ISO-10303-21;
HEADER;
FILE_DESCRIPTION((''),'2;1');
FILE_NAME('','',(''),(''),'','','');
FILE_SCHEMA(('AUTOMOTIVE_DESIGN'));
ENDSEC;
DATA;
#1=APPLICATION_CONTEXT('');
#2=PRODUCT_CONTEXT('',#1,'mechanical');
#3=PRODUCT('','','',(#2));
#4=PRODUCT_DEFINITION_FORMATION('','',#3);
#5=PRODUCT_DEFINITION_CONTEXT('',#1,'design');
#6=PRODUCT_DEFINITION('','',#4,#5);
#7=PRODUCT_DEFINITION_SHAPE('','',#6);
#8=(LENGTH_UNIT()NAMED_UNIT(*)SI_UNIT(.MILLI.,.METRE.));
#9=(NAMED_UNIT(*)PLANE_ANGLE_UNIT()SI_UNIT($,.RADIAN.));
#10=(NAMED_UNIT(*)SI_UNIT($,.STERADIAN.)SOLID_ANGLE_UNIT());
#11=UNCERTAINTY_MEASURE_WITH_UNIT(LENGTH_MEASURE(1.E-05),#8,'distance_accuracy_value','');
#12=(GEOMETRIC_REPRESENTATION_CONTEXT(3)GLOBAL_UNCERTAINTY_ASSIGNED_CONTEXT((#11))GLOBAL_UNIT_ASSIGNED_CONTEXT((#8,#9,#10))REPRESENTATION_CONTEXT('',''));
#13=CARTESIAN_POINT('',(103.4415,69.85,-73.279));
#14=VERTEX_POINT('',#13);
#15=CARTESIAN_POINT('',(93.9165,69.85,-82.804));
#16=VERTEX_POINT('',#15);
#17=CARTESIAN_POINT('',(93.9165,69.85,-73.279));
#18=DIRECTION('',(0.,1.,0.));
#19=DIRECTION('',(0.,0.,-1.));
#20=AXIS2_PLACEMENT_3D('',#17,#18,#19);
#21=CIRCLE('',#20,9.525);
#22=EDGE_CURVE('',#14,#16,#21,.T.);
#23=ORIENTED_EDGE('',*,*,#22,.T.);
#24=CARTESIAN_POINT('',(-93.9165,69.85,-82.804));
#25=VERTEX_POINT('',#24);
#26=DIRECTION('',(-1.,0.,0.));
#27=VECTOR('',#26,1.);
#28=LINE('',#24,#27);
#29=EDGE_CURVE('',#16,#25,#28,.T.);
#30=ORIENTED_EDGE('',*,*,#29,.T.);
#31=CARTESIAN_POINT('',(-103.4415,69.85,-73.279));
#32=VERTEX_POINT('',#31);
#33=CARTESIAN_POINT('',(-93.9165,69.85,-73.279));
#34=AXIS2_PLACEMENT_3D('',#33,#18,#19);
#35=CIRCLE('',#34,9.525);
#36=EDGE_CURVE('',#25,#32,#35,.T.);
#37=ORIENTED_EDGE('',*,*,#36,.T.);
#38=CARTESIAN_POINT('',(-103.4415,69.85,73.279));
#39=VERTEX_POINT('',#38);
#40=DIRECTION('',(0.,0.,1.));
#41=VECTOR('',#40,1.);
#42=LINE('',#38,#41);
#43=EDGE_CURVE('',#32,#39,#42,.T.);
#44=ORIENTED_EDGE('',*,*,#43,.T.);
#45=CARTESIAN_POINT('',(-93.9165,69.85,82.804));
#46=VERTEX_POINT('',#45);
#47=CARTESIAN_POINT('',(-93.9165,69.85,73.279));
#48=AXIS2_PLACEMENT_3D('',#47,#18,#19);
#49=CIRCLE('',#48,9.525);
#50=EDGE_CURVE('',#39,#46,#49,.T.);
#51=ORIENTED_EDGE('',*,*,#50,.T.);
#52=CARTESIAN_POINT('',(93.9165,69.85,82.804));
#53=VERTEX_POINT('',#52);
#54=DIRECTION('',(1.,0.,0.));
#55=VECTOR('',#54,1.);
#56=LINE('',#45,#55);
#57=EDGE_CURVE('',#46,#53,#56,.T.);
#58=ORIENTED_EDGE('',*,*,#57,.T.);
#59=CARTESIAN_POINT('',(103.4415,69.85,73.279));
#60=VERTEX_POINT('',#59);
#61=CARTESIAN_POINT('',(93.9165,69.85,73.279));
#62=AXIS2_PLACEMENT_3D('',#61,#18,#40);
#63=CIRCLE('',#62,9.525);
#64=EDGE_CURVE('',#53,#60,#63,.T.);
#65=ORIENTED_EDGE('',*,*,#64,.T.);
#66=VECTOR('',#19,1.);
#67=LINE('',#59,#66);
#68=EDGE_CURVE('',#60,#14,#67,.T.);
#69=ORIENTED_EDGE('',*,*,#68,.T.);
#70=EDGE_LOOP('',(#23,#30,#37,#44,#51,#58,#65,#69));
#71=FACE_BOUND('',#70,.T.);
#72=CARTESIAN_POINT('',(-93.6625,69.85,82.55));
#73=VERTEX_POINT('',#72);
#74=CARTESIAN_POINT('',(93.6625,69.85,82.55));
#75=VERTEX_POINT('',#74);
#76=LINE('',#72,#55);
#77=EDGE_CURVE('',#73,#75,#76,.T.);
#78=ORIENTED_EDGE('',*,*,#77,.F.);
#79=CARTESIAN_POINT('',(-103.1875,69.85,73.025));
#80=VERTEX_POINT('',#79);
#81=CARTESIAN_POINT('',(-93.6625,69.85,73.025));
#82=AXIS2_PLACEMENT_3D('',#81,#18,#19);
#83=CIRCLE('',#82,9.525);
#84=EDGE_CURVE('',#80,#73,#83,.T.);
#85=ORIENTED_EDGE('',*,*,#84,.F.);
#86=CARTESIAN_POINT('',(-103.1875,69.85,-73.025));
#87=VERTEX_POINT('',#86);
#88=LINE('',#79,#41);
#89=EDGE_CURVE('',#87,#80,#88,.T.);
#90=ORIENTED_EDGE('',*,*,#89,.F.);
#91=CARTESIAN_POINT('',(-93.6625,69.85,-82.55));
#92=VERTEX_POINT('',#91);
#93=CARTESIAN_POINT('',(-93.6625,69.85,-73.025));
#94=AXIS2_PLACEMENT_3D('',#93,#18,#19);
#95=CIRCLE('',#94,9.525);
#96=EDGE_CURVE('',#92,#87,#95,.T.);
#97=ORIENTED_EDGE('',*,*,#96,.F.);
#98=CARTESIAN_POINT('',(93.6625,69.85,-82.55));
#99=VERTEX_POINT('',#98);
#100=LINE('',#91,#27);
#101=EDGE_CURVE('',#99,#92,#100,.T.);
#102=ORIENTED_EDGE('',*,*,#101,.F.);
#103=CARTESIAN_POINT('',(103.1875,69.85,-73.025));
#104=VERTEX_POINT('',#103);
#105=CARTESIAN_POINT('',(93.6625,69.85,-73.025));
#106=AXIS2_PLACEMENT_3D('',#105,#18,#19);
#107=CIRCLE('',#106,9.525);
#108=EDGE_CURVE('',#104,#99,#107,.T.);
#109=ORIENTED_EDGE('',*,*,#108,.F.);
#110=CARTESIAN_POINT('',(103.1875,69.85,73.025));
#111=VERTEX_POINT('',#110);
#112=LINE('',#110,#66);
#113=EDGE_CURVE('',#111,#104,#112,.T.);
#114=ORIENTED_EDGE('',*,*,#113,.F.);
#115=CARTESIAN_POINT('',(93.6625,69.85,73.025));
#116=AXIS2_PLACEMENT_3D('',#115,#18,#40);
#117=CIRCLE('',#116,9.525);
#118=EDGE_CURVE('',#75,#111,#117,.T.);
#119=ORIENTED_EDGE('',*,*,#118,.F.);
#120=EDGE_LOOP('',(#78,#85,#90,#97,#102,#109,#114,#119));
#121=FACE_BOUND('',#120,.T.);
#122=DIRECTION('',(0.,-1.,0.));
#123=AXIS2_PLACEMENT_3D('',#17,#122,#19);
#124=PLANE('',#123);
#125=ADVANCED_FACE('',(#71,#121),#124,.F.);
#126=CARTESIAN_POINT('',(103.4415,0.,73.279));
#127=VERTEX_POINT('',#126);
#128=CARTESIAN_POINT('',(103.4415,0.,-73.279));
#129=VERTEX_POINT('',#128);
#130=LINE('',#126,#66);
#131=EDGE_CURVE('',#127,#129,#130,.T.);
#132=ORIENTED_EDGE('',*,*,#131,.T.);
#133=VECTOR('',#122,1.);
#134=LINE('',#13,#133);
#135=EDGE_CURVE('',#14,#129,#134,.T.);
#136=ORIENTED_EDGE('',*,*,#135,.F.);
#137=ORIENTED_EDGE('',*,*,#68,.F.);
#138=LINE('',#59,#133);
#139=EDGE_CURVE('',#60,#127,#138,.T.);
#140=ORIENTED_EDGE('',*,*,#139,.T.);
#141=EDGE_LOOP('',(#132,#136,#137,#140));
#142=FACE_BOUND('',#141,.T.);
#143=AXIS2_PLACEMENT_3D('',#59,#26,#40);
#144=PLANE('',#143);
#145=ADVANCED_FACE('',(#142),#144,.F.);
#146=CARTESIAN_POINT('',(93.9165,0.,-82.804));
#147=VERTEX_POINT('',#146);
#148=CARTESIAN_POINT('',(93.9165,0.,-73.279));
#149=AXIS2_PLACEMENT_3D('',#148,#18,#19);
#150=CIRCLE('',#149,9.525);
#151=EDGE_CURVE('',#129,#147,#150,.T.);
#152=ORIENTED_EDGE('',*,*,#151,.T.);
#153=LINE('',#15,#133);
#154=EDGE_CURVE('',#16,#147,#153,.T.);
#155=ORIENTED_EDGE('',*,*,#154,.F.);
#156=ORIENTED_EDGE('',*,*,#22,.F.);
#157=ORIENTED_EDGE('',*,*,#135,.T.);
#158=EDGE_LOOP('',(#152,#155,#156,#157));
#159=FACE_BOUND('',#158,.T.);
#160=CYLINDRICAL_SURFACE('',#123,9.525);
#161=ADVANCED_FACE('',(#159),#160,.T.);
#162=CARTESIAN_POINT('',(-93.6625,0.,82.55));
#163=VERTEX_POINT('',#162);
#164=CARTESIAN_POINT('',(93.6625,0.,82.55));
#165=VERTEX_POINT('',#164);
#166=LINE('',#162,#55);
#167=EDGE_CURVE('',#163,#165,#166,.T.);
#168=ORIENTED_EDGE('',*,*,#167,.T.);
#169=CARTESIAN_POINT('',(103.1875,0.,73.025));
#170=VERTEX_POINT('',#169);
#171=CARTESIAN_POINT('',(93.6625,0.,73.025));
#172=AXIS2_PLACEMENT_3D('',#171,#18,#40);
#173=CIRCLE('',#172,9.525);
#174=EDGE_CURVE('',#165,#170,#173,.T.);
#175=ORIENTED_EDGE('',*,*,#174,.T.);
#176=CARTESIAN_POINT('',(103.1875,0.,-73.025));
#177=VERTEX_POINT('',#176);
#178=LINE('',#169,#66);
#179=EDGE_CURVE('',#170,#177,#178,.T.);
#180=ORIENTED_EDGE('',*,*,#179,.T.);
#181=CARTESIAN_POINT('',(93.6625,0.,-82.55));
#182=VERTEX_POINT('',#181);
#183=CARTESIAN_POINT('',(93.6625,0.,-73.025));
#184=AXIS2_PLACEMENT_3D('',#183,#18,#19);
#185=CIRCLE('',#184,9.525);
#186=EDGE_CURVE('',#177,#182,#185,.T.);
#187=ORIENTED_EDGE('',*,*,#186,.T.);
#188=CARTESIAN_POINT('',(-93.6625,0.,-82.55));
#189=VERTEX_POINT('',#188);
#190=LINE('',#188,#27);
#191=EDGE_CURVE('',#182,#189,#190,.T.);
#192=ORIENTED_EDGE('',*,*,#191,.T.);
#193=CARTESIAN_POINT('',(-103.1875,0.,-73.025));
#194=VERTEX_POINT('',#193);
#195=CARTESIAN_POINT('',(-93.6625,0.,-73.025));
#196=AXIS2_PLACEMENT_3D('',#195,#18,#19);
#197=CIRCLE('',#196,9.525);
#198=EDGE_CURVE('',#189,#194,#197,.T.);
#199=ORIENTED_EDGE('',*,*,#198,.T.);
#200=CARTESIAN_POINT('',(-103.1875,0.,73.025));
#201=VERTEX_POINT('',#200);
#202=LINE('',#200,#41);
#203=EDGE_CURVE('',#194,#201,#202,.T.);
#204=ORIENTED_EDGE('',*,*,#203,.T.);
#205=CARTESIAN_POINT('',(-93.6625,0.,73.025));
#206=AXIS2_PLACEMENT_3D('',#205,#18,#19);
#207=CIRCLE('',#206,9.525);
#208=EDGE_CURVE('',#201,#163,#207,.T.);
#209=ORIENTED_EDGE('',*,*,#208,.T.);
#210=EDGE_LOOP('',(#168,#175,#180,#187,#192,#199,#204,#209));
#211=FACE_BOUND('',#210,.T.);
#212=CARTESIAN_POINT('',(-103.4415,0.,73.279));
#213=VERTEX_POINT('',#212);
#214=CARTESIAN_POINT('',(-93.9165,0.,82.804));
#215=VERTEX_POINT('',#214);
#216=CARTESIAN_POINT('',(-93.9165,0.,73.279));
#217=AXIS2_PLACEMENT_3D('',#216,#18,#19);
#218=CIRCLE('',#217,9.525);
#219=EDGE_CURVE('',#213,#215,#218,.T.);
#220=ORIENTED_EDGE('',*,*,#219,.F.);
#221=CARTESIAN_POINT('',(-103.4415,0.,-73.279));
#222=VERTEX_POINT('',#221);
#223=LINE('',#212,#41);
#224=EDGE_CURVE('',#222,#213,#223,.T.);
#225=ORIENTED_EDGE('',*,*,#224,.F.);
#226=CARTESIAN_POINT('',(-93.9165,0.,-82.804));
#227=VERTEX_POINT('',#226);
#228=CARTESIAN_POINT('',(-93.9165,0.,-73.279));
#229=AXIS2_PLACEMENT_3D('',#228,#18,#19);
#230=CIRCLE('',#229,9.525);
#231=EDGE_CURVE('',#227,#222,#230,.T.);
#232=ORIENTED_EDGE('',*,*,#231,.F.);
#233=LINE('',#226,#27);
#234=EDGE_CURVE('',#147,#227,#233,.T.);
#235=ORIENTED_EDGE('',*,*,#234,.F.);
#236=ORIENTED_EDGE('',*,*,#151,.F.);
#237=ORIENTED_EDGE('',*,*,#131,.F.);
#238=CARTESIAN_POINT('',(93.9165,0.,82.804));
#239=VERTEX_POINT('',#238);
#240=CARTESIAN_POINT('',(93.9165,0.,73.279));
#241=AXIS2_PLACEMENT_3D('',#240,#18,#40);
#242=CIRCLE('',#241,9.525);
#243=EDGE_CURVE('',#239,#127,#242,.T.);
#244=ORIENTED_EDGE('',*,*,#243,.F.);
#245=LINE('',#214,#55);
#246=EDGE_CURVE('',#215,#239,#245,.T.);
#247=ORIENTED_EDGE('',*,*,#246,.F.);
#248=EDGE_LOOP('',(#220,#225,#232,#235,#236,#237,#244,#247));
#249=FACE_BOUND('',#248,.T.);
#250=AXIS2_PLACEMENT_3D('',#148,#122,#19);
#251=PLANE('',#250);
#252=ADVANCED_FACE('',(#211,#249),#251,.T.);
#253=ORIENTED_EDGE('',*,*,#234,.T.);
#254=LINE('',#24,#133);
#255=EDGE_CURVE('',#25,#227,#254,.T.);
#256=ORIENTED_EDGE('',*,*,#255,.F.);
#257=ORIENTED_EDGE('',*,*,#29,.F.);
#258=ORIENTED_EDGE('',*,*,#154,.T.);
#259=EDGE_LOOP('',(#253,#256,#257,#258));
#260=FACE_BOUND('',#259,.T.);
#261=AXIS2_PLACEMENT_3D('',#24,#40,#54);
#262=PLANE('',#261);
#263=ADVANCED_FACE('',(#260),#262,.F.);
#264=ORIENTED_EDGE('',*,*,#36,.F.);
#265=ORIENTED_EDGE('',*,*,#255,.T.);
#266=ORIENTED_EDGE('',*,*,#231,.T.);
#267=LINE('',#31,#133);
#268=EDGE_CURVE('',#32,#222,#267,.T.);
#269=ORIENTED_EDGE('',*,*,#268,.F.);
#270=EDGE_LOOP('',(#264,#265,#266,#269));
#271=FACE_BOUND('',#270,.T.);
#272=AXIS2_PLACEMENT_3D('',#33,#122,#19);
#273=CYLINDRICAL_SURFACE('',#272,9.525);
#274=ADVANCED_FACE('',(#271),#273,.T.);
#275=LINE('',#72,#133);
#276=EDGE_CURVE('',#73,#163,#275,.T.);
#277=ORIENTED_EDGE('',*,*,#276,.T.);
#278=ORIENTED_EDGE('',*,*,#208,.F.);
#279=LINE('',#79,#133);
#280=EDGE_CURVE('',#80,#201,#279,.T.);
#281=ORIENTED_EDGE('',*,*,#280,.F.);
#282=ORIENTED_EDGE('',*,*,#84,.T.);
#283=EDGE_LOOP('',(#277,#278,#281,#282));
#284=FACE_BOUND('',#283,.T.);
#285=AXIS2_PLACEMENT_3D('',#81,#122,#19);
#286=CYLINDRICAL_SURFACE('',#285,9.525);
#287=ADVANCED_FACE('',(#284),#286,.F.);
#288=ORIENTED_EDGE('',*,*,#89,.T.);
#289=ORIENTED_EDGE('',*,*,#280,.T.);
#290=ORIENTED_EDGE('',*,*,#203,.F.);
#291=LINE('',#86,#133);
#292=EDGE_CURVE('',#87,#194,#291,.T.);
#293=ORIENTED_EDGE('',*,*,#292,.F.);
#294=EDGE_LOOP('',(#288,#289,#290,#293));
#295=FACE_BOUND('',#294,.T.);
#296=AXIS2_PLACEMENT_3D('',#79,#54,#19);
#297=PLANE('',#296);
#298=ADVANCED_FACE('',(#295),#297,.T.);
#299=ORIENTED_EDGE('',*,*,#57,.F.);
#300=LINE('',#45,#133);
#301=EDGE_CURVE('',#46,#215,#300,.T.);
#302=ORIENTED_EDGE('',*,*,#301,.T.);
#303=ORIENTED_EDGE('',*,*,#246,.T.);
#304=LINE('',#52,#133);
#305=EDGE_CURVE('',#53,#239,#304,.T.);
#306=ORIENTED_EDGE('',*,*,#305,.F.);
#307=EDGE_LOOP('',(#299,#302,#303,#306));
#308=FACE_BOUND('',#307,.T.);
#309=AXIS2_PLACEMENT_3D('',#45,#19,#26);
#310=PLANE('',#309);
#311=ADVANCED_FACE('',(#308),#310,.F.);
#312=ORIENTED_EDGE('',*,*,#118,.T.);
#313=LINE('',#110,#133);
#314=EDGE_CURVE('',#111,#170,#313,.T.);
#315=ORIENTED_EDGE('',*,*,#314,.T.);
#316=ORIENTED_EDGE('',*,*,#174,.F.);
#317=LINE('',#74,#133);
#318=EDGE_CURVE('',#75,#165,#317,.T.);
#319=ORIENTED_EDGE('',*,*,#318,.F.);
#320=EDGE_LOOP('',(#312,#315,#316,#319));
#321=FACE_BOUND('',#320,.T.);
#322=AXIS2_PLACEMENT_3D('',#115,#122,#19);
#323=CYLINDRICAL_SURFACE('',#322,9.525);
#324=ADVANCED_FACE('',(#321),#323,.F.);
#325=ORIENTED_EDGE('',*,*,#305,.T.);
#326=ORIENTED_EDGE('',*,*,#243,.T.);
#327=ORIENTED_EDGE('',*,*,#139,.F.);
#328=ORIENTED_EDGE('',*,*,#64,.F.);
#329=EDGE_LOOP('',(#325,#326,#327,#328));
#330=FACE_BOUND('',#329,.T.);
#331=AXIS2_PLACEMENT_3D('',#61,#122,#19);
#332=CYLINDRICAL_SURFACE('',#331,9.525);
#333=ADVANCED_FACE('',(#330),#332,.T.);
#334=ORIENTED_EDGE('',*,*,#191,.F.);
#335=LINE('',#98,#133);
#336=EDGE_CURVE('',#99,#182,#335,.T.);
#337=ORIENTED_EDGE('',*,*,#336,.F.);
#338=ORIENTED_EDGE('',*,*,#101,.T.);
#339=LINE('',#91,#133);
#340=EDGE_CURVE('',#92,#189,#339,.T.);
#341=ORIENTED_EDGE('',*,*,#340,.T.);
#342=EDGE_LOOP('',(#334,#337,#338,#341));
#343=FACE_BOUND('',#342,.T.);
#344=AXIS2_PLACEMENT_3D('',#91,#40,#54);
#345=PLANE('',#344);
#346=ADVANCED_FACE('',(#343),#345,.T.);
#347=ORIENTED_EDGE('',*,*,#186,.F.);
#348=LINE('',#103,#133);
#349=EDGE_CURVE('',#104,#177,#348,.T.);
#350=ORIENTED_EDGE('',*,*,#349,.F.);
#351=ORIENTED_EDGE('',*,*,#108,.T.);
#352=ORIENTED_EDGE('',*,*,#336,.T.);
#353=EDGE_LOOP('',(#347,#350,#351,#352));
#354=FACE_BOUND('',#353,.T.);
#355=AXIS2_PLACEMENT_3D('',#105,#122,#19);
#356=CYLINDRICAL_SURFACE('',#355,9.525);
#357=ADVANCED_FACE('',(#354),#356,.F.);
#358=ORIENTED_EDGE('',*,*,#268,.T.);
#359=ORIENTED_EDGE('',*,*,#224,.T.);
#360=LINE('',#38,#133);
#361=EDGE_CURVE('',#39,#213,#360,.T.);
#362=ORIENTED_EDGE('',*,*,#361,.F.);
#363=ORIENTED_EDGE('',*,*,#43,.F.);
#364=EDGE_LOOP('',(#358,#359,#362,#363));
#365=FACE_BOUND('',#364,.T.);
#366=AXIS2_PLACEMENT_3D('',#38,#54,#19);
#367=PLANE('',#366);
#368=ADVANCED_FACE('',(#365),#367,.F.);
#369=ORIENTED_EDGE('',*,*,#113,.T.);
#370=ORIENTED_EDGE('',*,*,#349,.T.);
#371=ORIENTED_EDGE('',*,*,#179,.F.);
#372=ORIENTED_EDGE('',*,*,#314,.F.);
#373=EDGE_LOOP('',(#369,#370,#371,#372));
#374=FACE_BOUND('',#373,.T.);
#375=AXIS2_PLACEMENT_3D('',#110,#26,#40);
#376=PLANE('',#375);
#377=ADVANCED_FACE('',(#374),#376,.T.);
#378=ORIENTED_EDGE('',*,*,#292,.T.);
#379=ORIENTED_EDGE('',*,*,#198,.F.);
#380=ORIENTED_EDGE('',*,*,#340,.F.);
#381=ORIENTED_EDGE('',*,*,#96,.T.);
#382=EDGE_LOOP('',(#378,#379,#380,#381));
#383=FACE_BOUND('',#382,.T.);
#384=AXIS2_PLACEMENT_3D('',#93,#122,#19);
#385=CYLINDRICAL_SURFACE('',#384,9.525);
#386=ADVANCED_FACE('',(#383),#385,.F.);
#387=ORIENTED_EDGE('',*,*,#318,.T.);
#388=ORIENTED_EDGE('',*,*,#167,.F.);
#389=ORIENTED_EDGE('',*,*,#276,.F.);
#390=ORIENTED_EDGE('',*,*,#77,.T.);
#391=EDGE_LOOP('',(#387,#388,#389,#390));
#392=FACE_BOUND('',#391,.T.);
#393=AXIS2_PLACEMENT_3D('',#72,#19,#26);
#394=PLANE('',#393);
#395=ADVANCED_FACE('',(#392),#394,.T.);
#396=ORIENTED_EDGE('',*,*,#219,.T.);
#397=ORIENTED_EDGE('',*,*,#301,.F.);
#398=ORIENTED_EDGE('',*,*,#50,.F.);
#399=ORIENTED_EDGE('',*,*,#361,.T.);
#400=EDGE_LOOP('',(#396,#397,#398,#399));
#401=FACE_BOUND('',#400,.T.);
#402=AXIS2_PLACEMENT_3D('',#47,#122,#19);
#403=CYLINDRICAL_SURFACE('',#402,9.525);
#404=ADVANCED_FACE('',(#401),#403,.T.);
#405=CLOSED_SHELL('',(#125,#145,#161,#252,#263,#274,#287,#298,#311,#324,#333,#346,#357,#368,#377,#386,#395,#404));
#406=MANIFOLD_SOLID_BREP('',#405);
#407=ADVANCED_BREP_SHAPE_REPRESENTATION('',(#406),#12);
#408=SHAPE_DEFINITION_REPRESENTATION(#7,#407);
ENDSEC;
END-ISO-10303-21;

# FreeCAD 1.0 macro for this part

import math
import FreeCAD as App
import Part
import Sketcher
Q = App.Units.Quantity

doc = App.newDocument("Part")
body = doc.addObject("PartDesign::Body", "Body")

# Sketch on XZ plane
sketch1 = doc.addObject("Sketcher::SketchObject", "Sketch")
body.addObject(sketch1)
sketch1.AttachmentSupport = (doc.XZ_Plane, [""])
sketch1.MapMode = "FlatFace"
sketch1.addGeometry([
    Part.LineSegment(App.Vector(-93.9165, 82.804, 0), App.Vector(93.9165, 82.804, 0)),  # 0
    Part.ArcOfCircle(Part.Circle(App.Vector(93.9165, 73.279, 0), App.Vector(0, 0, 1), 9.525), math.radians(0), math.radians(90)),  # 1
    Part.LineSegment(App.Vector(103.4415, 73.279, 0), App.Vector(103.4415, -73.279, 0)),  # 2
    Part.ArcOfCircle(Part.Circle(App.Vector(93.9165, -73.279, 0), App.Vector(0, 0, 1), 9.525), math.radians(-90), math.radians(0)),  # 3
    Part.LineSegment(App.Vector(93.9165, -82.804, 0), App.Vector(-93.9165, -82.804, 0)),  # 4
    Part.ArcOfCircle(Part.Circle(App.Vector(-93.9165, -73.279, 0), App.Vector(0, 0, 1), 9.525), math.radians(180), math.radians(270)),  # 5
    Part.LineSegment(App.Vector(-103.4415, -73.279, 0), App.Vector(-103.4415, 73.279, 0)),  # 6
    Part.ArcOfCircle(Part.Circle(App.Vector(-93.9165, 73.279, 0), App.Vector(0, 0, 1), 9.525), math.radians(90), math.radians(180)),  # 7
    Part.LineSegment(App.Vector(93.6625, 82.55, 0), App.Vector(-93.6625, 82.55, 0)),  # 8
    Part.ArcOfCircle(Part.Circle(App.Vector(-93.6625, 73.025, 0), App.Vector(0, 0, 1), 9.525), math.radians(90), math.radians(180)),  # 9
    Part.LineSegment(App.Vector(-103.1875, 73.025, 0), App.Vector(-103.1875, -73.025, 0)),  # 10
    Part.ArcOfCircle(Part.Circle(App.Vector(-93.6625, -73.025, 0), App.Vector(0, 0, 1), 9.525), math.radians(180), math.radians(270)),  # 11
    Part.LineSegment(App.Vector(-93.6625, -82.55, 0), App.Vector(93.6625, -82.55, 0)),  # 12
    Part.ArcOfCircle(Part.Circle(App.Vector(93.6625, -73.025, 0), App.Vector(0, 0, 1), 9.525), math.radians(-90), math.radians(0)),  # 13
    Part.LineSegment(App.Vector(103.1875, -73.025, 0), App.Vector(103.1875, 73.025, 0)),  # 14
    Part.ArcOfCircle(Part.Circle(App.Vector(93.6625, 73.025, 0), App.Vector(0, 0, 1), 9.525), math.radians(0), math.radians(90)),  # 15
], False)
sketch1.addConstraint([
    Sketcher.Constraint("Tangent", 0, 2, 1, 2),
    Sketcher.Constraint("Tangent", 1, 1, 2, 1),
    Sketcher.Constraint("Tangent", 2, 2, 3, 2),
    Sketcher.Constraint("Tangent", 3, 1, 4, 1),
    Sketcher.Constraint("Tangent", 4, 2, 5, 2),
    Sketcher.Constraint("Tangent", 5, 1, 6, 1),
    Sketcher.Constraint("Tangent", 6, 2, 7, 2),
    Sketcher.Constraint("Tangent", 7, 1, 0, 1),
    Sketcher.Constraint("Tangent", 8, 2, 9, 1),
    Sketcher.Constraint("Tangent", 9, 2, 10, 1),
    Sketcher.Constraint("Tangent", 10, 2, 11, 1),
    Sketcher.Constraint("Tangent", 11, 2, 12, 1),
    Sketcher.Constraint("Tangent", 12, 2, 13, 1),
    Sketcher.Constraint("Tangent", 13, 2, 14, 1),
    Sketcher.Constraint("Tangent", 14, 2, 15, 1),
    Sketcher.Constraint("Tangent", 15, 2, 8, 1),
    Sketcher.Constraint("Horizontal", 0),
    Sketcher.Constraint("Vertical", 2),
    Sketcher.Constraint("Horizontal", 4),
    Sketcher.Constraint("Vertical", 6),
    Sketcher.Constraint("Horizontal", 8),
    Sketcher.Constraint("Vertical", 10),
    Sketcher.Constraint("Horizontal", 12),
    Sketcher.Constraint("Vertical", 14),
    Sketcher.Constraint("Equal", 1, 3),
    Sketcher.Constraint("Equal", 3, 5),
    Sketcher.Constraint("Equal", 5, 7),
    Sketcher.Constraint("Equal", 7, 9),
    Sketcher.Constraint("Equal", 9, 11),
    Sketcher.Constraint("Equal", 11, 13),
    Sketcher.Constraint("Equal", 13, 15),
    Sketcher.Constraint("Symmetric", 1, 3, 5, 3, -1, 1),
    Sketcher.Constraint("Symmetric", 9, 3, 13, 3, -1, 1),
    Sketcher.Constraint("Radius", 1, Q("0.375 in")),
    Sketcher.Constraint("DistanceY", 2, 2, 2, 1, Q("5.77 in")),
    Sketcher.Constraint("DistanceY", 10, 2, 10, 1, Q("5.75 in")),
    Sketcher.Constraint("DistanceX", 0, 1, 0, 2, Q("7.395 in")),
    Sketcher.Constraint("DistanceX", 8, 2, 8, 1, Q("7.375 in")),
])
pad1 = doc.addObject("PartDesign::Pad", "Pad")
body.addObject(pad1)
pad1.Profile = sketch1
pad1.Length = Q("2.75 in")
pad1.Reversed = True

doc.recompute()
